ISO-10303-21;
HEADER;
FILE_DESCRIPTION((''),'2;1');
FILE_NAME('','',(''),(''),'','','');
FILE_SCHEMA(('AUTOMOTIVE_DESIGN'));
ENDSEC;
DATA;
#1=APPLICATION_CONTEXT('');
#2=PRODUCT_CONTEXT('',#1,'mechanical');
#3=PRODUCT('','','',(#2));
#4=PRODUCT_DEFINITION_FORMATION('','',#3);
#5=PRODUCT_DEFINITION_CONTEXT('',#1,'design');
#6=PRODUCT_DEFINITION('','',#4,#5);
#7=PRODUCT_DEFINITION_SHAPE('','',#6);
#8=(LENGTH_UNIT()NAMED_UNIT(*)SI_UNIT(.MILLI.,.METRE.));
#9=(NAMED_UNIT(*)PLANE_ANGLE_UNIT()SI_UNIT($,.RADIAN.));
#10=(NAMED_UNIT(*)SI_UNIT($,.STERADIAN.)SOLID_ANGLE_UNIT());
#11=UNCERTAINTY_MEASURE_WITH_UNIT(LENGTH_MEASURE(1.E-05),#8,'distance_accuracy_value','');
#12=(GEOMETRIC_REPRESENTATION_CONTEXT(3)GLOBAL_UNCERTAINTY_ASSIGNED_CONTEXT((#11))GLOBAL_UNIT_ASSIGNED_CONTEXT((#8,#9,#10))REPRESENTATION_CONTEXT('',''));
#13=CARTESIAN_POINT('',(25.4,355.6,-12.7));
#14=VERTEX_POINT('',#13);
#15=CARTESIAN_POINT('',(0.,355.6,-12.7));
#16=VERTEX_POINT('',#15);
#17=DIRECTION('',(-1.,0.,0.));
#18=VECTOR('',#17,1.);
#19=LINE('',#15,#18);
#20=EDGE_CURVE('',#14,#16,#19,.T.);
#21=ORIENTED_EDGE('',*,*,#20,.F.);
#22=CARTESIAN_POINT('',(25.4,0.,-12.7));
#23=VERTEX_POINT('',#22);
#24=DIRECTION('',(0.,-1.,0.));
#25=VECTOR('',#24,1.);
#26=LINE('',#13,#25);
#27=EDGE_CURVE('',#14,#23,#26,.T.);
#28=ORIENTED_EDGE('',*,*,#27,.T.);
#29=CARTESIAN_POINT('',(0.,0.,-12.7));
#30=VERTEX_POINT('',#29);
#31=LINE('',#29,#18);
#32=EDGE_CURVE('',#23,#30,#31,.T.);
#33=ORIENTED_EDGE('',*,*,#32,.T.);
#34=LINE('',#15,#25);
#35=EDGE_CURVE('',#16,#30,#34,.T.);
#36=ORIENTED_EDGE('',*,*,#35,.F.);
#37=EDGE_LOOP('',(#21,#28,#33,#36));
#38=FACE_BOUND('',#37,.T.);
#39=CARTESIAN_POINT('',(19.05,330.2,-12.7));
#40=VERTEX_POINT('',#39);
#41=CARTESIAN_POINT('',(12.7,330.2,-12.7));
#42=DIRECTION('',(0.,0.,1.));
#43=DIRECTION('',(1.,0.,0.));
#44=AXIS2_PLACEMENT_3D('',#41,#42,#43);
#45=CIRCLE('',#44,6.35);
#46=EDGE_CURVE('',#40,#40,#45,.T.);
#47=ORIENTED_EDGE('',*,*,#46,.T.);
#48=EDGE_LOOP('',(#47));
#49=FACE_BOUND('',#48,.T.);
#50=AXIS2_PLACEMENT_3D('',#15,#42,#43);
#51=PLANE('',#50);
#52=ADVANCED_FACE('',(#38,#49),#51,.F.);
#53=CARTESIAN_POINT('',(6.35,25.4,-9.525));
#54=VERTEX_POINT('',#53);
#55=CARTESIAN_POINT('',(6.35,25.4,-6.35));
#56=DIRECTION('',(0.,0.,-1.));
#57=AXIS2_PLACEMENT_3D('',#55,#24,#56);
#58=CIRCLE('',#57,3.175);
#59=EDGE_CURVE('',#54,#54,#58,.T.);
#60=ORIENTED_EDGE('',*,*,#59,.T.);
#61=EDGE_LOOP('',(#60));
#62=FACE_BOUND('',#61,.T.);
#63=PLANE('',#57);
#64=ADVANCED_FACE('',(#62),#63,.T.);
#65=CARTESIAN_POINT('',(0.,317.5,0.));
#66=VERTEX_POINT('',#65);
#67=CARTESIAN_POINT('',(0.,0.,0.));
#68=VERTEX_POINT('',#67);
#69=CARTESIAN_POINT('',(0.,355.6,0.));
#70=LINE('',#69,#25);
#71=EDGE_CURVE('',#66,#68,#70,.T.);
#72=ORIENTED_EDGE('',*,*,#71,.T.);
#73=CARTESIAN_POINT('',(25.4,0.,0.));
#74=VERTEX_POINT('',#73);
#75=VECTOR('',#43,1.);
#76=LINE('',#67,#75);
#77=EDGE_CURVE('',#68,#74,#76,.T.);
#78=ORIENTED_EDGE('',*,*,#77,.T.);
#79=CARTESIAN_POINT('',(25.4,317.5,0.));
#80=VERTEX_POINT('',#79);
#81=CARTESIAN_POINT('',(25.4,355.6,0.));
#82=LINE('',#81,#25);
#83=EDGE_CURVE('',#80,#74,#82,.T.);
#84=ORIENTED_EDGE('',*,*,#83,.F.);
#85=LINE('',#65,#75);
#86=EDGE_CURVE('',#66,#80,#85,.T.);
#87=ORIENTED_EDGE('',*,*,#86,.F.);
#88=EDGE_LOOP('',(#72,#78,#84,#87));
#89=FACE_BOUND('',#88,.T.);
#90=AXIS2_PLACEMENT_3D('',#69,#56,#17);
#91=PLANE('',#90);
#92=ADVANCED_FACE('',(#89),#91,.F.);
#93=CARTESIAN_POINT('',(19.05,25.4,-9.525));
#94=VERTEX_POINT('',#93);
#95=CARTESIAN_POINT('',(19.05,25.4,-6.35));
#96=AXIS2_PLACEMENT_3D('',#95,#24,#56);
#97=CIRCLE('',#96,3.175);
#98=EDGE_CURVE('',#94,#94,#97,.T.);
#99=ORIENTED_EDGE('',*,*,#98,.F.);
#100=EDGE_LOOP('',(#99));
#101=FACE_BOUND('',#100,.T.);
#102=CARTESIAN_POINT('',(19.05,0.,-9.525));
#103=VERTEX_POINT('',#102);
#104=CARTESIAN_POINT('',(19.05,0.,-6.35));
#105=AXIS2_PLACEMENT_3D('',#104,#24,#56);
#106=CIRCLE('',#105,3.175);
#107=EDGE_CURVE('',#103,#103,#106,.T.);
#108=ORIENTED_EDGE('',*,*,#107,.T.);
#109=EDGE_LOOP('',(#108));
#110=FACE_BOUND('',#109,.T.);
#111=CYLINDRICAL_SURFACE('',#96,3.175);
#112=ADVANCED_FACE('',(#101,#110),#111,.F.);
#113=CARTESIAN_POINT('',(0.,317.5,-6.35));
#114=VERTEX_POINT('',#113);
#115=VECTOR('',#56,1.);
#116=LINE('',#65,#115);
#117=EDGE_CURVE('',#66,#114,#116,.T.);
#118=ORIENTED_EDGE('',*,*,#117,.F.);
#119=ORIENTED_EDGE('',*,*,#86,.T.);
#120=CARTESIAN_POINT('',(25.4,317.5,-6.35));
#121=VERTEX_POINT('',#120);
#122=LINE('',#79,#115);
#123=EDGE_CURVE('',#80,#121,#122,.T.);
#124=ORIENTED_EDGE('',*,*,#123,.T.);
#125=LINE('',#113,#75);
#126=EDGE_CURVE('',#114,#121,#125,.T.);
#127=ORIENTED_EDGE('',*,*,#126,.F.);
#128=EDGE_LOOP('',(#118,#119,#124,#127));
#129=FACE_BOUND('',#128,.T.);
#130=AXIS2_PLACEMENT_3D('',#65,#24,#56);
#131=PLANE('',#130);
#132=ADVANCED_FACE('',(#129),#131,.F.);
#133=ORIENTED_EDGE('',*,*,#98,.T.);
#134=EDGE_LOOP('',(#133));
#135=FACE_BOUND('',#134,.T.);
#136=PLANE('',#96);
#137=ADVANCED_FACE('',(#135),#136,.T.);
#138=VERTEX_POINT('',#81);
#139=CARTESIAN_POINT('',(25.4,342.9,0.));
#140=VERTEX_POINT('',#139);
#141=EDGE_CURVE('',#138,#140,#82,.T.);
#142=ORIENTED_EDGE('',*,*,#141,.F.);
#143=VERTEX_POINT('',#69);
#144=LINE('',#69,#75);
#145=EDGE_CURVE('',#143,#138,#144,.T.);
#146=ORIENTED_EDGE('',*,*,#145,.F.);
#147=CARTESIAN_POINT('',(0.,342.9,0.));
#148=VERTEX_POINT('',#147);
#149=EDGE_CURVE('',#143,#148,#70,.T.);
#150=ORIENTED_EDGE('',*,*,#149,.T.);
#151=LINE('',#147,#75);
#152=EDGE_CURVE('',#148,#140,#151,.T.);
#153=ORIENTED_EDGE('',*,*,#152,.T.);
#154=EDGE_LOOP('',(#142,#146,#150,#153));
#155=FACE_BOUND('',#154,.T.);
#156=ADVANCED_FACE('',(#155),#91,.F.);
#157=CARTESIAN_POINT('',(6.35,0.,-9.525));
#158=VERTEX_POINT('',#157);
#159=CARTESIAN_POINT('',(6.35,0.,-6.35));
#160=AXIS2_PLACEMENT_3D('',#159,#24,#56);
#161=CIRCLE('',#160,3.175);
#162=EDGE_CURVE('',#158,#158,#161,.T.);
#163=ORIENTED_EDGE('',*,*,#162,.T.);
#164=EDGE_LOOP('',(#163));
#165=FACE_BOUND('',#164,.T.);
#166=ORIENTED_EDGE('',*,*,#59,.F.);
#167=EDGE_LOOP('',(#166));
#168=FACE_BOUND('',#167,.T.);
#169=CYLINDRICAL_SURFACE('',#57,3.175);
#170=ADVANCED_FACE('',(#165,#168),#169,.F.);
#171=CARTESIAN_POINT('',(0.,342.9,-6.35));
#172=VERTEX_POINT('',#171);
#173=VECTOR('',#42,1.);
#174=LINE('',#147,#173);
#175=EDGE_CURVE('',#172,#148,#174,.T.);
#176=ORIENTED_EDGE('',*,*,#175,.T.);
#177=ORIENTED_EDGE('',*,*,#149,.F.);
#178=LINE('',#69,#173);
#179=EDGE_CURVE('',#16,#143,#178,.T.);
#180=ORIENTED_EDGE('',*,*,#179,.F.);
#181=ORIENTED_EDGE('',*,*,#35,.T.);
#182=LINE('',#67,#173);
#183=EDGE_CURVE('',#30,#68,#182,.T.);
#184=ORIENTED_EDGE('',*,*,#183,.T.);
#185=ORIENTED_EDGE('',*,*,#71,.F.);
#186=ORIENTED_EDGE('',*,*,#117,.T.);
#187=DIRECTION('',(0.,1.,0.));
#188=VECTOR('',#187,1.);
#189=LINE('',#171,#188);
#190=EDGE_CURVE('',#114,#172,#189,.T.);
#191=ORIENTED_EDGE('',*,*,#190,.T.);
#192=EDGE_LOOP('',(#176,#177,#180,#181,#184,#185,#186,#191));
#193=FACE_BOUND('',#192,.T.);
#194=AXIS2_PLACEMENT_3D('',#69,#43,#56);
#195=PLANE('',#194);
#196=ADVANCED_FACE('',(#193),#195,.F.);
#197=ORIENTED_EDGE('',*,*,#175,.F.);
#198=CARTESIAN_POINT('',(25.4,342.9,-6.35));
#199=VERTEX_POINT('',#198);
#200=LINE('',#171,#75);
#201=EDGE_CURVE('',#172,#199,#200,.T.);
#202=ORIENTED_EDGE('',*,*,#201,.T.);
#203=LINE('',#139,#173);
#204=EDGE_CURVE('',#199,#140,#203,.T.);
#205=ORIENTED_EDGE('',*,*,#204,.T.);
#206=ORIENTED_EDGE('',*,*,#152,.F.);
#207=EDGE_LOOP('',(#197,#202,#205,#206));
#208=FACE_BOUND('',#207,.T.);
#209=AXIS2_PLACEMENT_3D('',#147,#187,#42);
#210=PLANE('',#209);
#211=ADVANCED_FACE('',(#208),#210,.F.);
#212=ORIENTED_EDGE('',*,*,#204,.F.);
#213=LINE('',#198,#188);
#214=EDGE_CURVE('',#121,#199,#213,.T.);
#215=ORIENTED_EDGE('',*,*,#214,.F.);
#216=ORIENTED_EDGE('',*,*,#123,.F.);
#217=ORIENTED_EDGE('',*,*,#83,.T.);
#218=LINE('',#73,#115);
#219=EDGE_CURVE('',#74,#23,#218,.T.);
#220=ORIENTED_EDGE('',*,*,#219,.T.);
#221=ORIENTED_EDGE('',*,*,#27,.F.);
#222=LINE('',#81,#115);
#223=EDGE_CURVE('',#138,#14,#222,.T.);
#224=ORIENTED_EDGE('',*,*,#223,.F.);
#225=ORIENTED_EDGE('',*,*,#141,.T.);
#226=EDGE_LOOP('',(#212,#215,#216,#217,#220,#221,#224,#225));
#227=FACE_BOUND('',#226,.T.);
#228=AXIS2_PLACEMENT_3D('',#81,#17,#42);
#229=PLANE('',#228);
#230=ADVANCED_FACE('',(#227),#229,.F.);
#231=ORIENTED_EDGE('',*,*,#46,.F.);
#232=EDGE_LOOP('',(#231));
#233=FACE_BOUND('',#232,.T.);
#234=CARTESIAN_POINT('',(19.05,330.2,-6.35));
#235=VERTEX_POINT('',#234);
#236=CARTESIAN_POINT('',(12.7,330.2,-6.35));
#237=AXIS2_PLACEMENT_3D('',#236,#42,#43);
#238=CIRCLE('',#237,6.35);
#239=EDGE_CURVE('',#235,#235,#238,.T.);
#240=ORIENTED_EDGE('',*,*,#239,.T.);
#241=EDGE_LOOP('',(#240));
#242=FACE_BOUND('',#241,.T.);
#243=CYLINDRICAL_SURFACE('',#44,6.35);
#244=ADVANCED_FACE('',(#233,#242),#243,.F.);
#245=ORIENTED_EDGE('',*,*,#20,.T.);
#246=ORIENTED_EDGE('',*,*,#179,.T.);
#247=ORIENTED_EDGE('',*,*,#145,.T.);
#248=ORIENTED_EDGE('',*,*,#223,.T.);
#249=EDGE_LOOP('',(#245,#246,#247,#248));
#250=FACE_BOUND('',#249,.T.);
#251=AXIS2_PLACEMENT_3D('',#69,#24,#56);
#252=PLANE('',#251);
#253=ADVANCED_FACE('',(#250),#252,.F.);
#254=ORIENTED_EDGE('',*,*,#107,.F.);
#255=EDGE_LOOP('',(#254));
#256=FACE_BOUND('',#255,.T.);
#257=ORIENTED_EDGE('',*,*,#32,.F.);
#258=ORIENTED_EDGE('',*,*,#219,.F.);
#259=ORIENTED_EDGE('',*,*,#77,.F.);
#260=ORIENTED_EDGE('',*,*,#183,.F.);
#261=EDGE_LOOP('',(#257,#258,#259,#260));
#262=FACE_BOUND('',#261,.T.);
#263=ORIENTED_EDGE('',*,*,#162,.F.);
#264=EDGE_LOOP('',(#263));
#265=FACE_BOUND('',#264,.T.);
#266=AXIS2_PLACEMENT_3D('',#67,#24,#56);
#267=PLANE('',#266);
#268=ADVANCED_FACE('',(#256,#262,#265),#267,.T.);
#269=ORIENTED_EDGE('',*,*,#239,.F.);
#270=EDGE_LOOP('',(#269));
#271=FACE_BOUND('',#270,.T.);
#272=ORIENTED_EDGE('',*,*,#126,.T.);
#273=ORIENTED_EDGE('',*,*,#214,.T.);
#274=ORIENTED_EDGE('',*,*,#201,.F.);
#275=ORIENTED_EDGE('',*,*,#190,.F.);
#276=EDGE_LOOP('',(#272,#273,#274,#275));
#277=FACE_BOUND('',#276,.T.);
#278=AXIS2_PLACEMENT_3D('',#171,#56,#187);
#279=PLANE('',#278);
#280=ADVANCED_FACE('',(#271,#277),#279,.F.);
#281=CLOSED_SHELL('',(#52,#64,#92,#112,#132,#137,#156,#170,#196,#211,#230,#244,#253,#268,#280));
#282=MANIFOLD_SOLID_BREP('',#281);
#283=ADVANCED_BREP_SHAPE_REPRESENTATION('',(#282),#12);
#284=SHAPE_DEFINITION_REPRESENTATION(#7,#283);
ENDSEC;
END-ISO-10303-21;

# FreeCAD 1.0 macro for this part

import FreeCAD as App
import Part
import Sketcher
Q = App.Units.Quantity

doc = App.newDocument("Part")
params = doc.addObject("Spreadsheet::Sheet", "Params")
for row, (alias, value) in enumerate([
    ("sketch1_width", "1 in"),
    ("sketch1_height", "0.5 in"),
    ("pad1_length", "14 in"),
    ("sketch2_width", "1 in"),
    ("sketch2_height", "0.25 in"),
    ("sketch3_diameter", "0.5 in"),
    ("sketch4_diameter", "0.25 in"),
    ("pocket3_length", "1 in"),
], start=1):
    params.set(f"A{row}", alias)
    params.set(f"B{row}", "=" + value)
    params.setAlias(f"B{row}", alias)

body = doc.addObject("PartDesign::Body", "Body")

sketch1 = body.newObject("Sketcher::SketchObject", "Sketch")
sketch1.AttachmentSupport = (doc.getObject("XZ_Plane"), [""])
sketch1.MapMode = "FlatFace"
sketch1.addGeometry([
    Part.LineSegment(App.Vector(0, -12.7, 0), App.Vector(0, 0, 0)),
    Part.LineSegment(App.Vector(0, 0, 0), App.Vector(25.4, 0, 0)),
    Part.LineSegment(App.Vector(25.4, 0, 0), App.Vector(25.4, -12.7, 0)),
    Part.LineSegment(App.Vector(25.4, -12.7, 0), App.Vector(0, -12.7, 0)),
], False)
sketch1.addConstraint([
    Sketcher.Constraint("Coincident", 0, 2, 1, 1),
    Sketcher.Constraint("Coincident", 1, 2, 2, 1),
    Sketcher.Constraint("Coincident", 2, 2, 3, 1),
    Sketcher.Constraint("Coincident", 3, 2, 0, 1),
    Sketcher.Constraint("Vertical", 0),
    Sketcher.Constraint("Horizontal", 1),
    Sketcher.Constraint("Vertical", 2),
    Sketcher.Constraint("Horizontal", 3),
    Sketcher.Constraint("Coincident", 0, 2, -1, 1),
    Sketcher.Constraint("DistanceX", 1, 1, 1, 2, Q("1 in")),
    Sketcher.Constraint("DistanceY", 0, 1, 0, 2, Q("0.5 in")),
])
sketch1.setExpression("Constraints[9]", "Params.sketch1_width")
sketch1.setExpression("Constraints[10]", "Params.sketch1_height")
pad1 = body.newObject("PartDesign::Pad", "Pad")
pad1.Profile = sketch1
pad1.setExpression("Length", "Params.pad1_length")
pad1.Reversed = True

sketch2 = body.newObject("Sketcher::SketchObject", "Sketch001")
sketch2.AttachmentSupport = (doc.getObject("YZ_Plane"), [""])
sketch2.MapMode = "FlatFace"
sketch2.AttachmentOffset = App.Placement(App.Vector(0, 0, 1 * 25.4), App.Rotation())
sketch2.addGeometry([
    Part.LineSegment(App.Vector(342.9, 0, 0), App.Vector(317.5, 0, 0)),
    Part.LineSegment(App.Vector(317.5, 0, 0), App.Vector(317.5, -6.35, 0)),
    Part.LineSegment(App.Vector(317.5, -6.35, 0), App.Vector(342.9, -6.35, 0)),
    Part.LineSegment(App.Vector(342.9, -6.35, 0), App.Vector(342.9, 0, 0)),
], False)
sketch2.addConstraint([
    Sketcher.Constraint("Coincident", 0, 2, 1, 1),
    Sketcher.Constraint("Coincident", 1, 2, 2, 1),
    Sketcher.Constraint("Coincident", 2, 2, 3, 1),
    Sketcher.Constraint("Coincident", 3, 2, 0, 1),
    Sketcher.Constraint("Horizontal", 0),
    Sketcher.Constraint("Vertical", 1),
    Sketcher.Constraint("Horizontal", 2),
    Sketcher.Constraint("Vertical", 3),
    Sketcher.Constraint("PointOnObject", 0, 2, -1),
    Sketcher.Constraint("DistanceX", 0, 2, 0, 1, Q("1 in")),
    Sketcher.Constraint("DistanceY", 1, 2, 1, 1, Q("0.25 in")),
    Sketcher.Constraint("DistanceX", -1, 1, 0, 2, Q("12.5 in")),
])
sketch2.setExpression("Constraints[9]", "Params.sketch2_width")
sketch2.setExpression("Constraints[10]", "Params.sketch2_height")
pocket1 = body.newObject("PartDesign::Pocket", "Pocket")
pocket1.Profile = sketch2
pocket1.Type = "ThroughAll"

sketch3 = body.newObject("Sketcher::SketchObject", "Sketch002")
sketch3.AttachmentSupport = (doc.getObject("XY_Plane"), [""])
sketch3.MapMode = "FlatFace"
sketch3.AttachmentOffset = App.Placement(App.Vector(0, 0, -0.25 * 25.4), App.Rotation())
sketch3.addGeometry(Part.Circle(App.Vector(12.7, 330.2, 0), App.Vector(0, 0, 1), 6.35), False)
sketch3.addConstraint([
    Sketcher.Constraint("Diameter", 0, Q("0.5 in")),
    Sketcher.Constraint("DistanceY", -1, 1, 0, 3, Q("13 in")),
    Sketcher.Constraint("DistanceX", -1, 1, 0, 3, Q("0.5 in")),
])
sketch3.setExpression("Constraints[0]", "Params.sketch3_diameter")
pocket2 = body.newObject("PartDesign::Pocket", "Pocket001")
pocket2.Profile = sketch3
pocket2.Type = "ThroughAll"

sketch4 = body.newObject("Sketcher::SketchObject", "Sketch003")
sketch4.AttachmentSupport = (doc.getObject("XZ_Plane"), [""])
sketch4.MapMode = "FlatFace"
sketch4.addGeometry([
    Part.Circle(App.Vector(6.35, -6.35, 0), App.Vector(0, 0, 1), 3.175),
    Part.Circle(App.Vector(19.05, -6.35, 0), App.Vector(0, 0, 1), 3.175),
], False)
sketch4.addConstraint([
    Sketcher.Constraint("Equal", 0, 1),
    Sketcher.Constraint("Horizontal", 0, 3, 1, 3),
    Sketcher.Constraint("Diameter", 0, Q("0.25 in")),
    Sketcher.Constraint("DistanceX", 0, 3, 1, 3, Q("0.5 in")),
    Sketcher.Constraint("DistanceX", -1, 1, 0, 3, Q("0.25 in")),
    Sketcher.Constraint("DistanceY", 0, 3, -1, 1, Q("0.25 in")),
])
sketch4.setExpression("Constraints[2]", "Params.sketch4_diameter")
pocket3 = body.newObject("PartDesign::Pocket", "Pocket002")
pocket3.Profile = sketch4
pocket3.setExpression("Length", "Params.pocket3_length")

doc.recompute()
